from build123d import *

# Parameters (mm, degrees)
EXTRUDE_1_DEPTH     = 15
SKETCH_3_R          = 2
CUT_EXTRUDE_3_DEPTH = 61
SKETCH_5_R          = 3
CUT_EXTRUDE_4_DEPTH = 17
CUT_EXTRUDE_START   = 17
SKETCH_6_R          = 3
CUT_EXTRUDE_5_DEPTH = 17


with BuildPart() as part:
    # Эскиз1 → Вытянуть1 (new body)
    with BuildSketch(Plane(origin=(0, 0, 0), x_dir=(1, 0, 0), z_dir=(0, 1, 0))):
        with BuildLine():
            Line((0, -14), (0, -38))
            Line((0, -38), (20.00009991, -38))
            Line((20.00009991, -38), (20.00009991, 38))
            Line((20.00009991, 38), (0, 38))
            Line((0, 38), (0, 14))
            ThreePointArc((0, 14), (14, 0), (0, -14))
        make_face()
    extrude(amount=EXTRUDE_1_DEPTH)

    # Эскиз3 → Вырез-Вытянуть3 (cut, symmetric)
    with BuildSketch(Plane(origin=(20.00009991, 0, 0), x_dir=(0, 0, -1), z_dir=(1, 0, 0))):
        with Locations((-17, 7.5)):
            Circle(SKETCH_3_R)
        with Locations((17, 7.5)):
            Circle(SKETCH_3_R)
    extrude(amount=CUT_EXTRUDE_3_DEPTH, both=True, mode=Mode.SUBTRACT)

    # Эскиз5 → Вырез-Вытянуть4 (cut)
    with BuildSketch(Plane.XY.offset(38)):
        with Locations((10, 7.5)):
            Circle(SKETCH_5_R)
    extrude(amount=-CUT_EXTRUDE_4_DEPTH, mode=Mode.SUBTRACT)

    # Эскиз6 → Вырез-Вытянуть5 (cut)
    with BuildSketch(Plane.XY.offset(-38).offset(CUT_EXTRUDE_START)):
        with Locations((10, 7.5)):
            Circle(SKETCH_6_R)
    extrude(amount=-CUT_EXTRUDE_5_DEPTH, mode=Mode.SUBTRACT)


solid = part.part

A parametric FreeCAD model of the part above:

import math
import FreeCAD as App
import Part
import Sketcher

V = App.Vector
Q = App.Units.Quantity

doc = App.newDocument("Part")
params = doc.addObject("Spreadsheet::Sheet", "Params")
for row, (alias, value) in enumerate([
    ("sketch1_radius", "14 mm"),
    ("sketch1_height", "24 mm"),
    ("pad1_length", "15 mm"),
    ("sketch2_diameter", "4 mm"),
    ("pocket1_length", "122 mm"),
    ("sketch3_diameter", "6 mm"),
    ("pocket2_length", "17 mm"),
    ("sketch4_diameter", "6 mm"),
    ("pocket3_length", "17 mm"),
], start=1):
    params.set(f"A{row}", alias)
    params.set(f"B{row}", "=" + value)
    params.setAlias(f"B{row}", alias)

body = doc.addObject("PartDesign::Body", "Body")

# Sketch on XZ plane
sketch1 = doc.addObject("Sketcher::SketchObject", "Sketch")
body.addObject(sketch1)
sketch1.AttachmentSupport = (doc.XZ_Plane, [""])
sketch1.MapMode = "FlatFace"
sketch1.addGeometry([
    Part.LineSegment(V(0, 14, 0), V(0, 38, 0)),  # 0
    Part.LineSegment(V(0, 38, 0), V(20, 38, 0)),  # 1
    Part.LineSegment(V(20, 38, 0), V(20, -38, 0)),  # 2
    Part.LineSegment(V(20, -38, 0), V(0, -38, 0)),  # 3
    Part.LineSegment(V(0, -38, 0), V(0, -14, 0)),  # 4
    Part.ArcOfCircle(Part.Circle(V(0, 0, 0), V(0, 0, 1), 14), math.radians(-90), math.radians(90)),  # 5
], False)
sketch1.addConstraint([
    Sketcher.Constraint("Coincident", 0, 2, 1, 1),
    Sketcher.Constraint("Coincident", 1, 2, 2, 1),
    Sketcher.Constraint("Coincident", 2, 2, 3, 1),
    Sketcher.Constraint("Coincident", 3, 2, 4, 1),
    Sketcher.Constraint("Coincident", 4, 2, 5, 1),
    Sketcher.Constraint("Coincident", 5, 2, 0, 1),
    Sketcher.Constraint("Vertical", 0),
    Sketcher.Constraint("Horizontal", 1),
    Sketcher.Constraint("Vertical", 2),
    Sketcher.Constraint("Horizontal", 3),
    Sketcher.Constraint("Vertical", 4),
    Sketcher.Constraint("Coincident", 5, 3, -1, 1),
    Sketcher.Constraint("Symmetric", 0, 2, 3, 2, -1, 1),
    Sketcher.Constraint("PointOnObject", 0, 2, -2),
    Sketcher.Constraint("Radius", 5, Q("14 mm")),
    Sketcher.Constraint("DistanceY", 0, 1, 0, 2, Q("24 mm")),
    Sketcher.Constraint("DistanceX", 1, 1, 1, 2, Q("20.0001 mm")),
])
sketch1.setExpression("Constraints[14]", "Params.sketch1_radius")
sketch1.setExpression("Constraints[15]", "Params.sketch1_height")
pad1 = doc.addObject("PartDesign::Pad", "Pad")
body.addObject(pad1)
pad1.Profile = sketch1
pad1.setExpression("Length", "Params.pad1_length")
pad1.Reversed = True

# Sketch on YZ plane
sketch2 = doc.addObject("Sketcher::SketchObject", "Sketch001")
body.addObject(sketch2)
sketch2.AttachmentSupport = (doc.YZ_Plane, [""])
sketch2.MapMode = "FlatFace"
sketch2.AttachmentOffset = App.Placement(V(0, 0, 20.0001), App.Rotation())
sketch2.addGeometry([
    Part.Circle(V(7.5, 17, 0), V(0, 0, 1), 2),
    Part.Circle(V(7.5, -17, 0), V(0, 0, 1), 2),
], False)
sketch2.addConstraint([
    Sketcher.Constraint("Equal", 0, 1),
    Sketcher.Constraint("Symmetric", 0, 3, 1, 3, -1),
    Sketcher.Constraint("Diameter", 0, Q("4 mm")),
    Sketcher.Constraint("DistanceY", -1, 1, 0, 3, Q("17 mm")),
    Sketcher.Constraint("DistanceX", -1, 1, 0, 3, Q("7.5 mm")),
])
sketch2.setExpression("Constraints[2]", "Params.sketch2_diameter")
pocket1 = doc.addObject("PartDesign::Pocket", "Pocket")
body.addObject(pocket1)
pocket1.Profile = sketch2
pocket1.setExpression("Length", "Params.pocket1_length")
pocket1.Midplane = True

# Sketch on XY plane
sketch3 = doc.addObject("Sketcher::SketchObject", "Sketch002")
body.addObject(sketch3)
sketch3.AttachmentSupport = (doc.XY_Plane, [""])
sketch3.MapMode = "FlatFace"
sketch3.AttachmentOffset = App.Placement(V(0, 0, 38), App.Rotation())
sketch3.addGeometry(Part.Circle(V(10, 7.5, 0), V(0, 0, 1), 3), False)
sketch3.addConstraint([
    Sketcher.Constraint("Diameter", 0, Q("6 mm")),
    Sketcher.Constraint("DistanceX", -1, 1, 0, 3, Q("10 mm")),
    Sketcher.Constraint("DistanceY", -1, 1, 0, 3, Q("7.5 mm")),
])
sketch3.setExpression("Constraints[0]", "Params.sketch3_diameter")
pocket2 = doc.addObject("PartDesign::Pocket", "Pocket001")
body.addObject(pocket2)
pocket2.Profile = sketch3
pocket2.setExpression("Length", "Params.pocket2_length")

# Sketch on XY plane
sketch4 = doc.addObject("Sketcher::SketchObject", "Sketch003")
body.addObject(sketch4)
sketch4.AttachmentSupport = (doc.XY_Plane, [""])
sketch4.MapMode = "FlatFace"
sketch4.AttachmentOffset = App.Placement(V(0, 0, -21), App.Rotation())
sketch4.addGeometry(Part.Circle(V(10, 7.5, 0), V(0, 0, 1), 3), False)
sketch4.addConstraint([
    Sketcher.Constraint("Diameter", 0, Q("6 mm")),
    Sketcher.Constraint("DistanceX", -1, 1, 0, 3, Q("10 mm")),
    Sketcher.Constraint("DistanceY", -1, 1, 0, 3, Q("7.5 mm")),
])
sketch4.setExpression("Constraints[0]", "Params.sketch4_diameter")
pocket3 = doc.addObject("PartDesign::Pocket", "Pocket002")
body.addObject(pocket3)
pocket3.Profile = sketch4
pocket3.setExpression("Length", "Params.pocket3_length")

doc.recompute()
